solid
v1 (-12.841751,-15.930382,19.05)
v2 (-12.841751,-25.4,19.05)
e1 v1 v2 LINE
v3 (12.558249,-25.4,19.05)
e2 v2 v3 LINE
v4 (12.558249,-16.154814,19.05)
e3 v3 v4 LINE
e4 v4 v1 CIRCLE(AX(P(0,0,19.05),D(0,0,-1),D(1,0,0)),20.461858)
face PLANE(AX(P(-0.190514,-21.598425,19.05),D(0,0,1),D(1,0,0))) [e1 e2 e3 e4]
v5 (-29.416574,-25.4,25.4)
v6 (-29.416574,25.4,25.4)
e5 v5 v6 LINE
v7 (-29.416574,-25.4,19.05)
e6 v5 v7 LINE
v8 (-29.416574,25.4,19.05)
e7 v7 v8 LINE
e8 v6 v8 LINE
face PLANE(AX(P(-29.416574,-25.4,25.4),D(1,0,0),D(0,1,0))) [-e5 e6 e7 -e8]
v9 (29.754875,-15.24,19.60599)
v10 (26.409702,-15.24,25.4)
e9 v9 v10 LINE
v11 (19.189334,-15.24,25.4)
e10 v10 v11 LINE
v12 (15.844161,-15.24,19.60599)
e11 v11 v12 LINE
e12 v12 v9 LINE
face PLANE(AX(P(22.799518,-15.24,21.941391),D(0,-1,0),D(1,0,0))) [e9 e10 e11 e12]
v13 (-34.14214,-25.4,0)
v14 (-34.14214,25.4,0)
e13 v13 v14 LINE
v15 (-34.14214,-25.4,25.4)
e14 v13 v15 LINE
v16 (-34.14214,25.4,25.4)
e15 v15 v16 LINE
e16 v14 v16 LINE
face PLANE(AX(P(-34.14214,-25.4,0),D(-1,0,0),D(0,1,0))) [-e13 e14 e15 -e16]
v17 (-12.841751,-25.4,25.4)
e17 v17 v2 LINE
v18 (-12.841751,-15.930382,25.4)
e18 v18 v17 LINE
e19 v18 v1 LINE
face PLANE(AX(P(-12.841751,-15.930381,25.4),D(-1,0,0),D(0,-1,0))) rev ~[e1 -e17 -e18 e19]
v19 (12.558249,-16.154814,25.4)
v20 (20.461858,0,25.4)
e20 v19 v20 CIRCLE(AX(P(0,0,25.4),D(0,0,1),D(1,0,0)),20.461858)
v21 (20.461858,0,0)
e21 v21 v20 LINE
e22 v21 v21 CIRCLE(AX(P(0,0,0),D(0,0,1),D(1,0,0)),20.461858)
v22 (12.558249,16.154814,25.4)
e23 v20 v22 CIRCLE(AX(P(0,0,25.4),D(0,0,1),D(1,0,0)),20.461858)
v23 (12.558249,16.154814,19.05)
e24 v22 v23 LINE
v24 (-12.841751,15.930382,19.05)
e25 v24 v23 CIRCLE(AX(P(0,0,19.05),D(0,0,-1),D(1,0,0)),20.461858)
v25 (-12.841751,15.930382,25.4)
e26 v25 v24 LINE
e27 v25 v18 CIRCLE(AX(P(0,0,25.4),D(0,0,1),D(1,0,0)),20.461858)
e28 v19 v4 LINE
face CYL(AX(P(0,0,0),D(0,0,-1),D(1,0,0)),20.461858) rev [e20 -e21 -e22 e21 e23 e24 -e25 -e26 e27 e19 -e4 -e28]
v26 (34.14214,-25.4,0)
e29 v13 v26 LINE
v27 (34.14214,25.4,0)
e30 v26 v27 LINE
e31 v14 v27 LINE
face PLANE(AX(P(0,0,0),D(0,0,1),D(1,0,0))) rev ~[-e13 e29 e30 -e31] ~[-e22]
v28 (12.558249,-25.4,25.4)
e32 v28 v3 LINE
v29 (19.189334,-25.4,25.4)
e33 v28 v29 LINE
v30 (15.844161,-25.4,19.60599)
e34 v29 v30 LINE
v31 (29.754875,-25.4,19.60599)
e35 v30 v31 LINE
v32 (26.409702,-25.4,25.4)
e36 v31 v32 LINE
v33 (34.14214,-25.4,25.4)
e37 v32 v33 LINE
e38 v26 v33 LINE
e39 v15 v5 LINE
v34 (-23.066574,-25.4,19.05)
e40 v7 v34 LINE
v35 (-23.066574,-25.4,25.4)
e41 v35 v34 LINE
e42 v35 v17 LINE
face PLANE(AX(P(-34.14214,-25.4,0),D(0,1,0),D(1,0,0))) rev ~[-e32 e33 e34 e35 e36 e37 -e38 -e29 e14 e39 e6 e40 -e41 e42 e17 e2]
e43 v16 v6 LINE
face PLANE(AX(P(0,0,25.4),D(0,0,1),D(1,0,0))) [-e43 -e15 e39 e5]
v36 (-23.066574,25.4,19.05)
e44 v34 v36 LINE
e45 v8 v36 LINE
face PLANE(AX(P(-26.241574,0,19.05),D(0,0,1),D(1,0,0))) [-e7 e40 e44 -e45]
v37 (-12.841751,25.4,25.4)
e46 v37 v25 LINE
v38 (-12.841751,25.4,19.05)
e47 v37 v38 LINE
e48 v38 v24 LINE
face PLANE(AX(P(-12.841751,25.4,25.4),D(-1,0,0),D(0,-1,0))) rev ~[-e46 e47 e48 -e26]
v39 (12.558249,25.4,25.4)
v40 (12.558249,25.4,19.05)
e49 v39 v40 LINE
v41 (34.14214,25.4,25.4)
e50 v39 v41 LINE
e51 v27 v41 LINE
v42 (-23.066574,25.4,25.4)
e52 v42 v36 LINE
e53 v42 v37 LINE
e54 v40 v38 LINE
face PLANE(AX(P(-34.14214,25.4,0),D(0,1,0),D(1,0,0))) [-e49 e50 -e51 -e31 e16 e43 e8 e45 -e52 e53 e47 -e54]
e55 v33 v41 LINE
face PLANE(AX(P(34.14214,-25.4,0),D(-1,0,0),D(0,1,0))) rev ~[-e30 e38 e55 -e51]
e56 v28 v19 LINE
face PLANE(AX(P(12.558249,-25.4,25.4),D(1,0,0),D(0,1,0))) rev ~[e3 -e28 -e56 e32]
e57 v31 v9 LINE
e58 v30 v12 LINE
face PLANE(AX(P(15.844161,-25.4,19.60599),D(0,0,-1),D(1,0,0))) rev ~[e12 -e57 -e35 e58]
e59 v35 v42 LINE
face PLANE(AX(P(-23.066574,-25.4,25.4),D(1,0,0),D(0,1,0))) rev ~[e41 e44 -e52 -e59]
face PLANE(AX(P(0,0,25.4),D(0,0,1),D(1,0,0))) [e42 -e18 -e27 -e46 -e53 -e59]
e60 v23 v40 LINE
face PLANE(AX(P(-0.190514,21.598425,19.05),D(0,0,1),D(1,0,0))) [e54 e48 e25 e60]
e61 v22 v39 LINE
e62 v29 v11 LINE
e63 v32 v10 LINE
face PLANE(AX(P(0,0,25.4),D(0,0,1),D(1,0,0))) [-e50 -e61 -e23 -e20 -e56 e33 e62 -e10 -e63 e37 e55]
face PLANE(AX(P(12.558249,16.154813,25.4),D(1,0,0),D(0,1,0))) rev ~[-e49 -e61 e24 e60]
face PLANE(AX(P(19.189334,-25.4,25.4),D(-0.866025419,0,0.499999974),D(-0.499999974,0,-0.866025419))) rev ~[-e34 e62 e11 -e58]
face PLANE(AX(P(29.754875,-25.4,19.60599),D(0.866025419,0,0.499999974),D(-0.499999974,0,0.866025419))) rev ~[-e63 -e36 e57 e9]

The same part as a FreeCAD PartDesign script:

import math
import FreeCAD as App
import Part
import Sketcher

V = App.Vector
Q = App.Units.Quantity


def add_polygon(sketch, points):
    """Adds a closed chain of lines whose ends are joined by coincident constraints."""
    first, n = sketch.GeometryCount, len(points)
    for a, b in zip(points, points[1:] + points[:1]):
        sketch.addGeometry(Part.LineSegment(App.Vector(*a, 0), App.Vector(*b, 0)), False)
    for i in range(n):
        sketch.addConstraint(Sketcher.Constraint("Coincident", first + i, 2, first + (i + 1) % n, 1))

doc = App.newDocument("Part")
body = doc.addObject("PartDesign::Body", "Body")

sketch1 = doc.addObject("Sketcher::SketchObject", "Sketch")
body.addObject(sketch1)
sketch1.AttachmentSupport = (doc.XY_Plane, [""])
sketch1.MapMode = "FlatFace"
add_polygon(sketch1, [(-34.14214, 25.4), (-34.14214, -25.4), (34.14214, -25.4), (34.14214, 25.4)])
sketch1.addGeometry(Part.Circle(V(0, 0, 0), V(0, 0, 1), 20.461858), False)
sketch1.addConstraint([
    Sketcher.Constraint("Vertical", 0),
    Sketcher.Constraint("Horizontal", 1),
    Sketcher.Constraint("Vertical", 2),
    Sketcher.Constraint("Horizontal", 3),
    Sketcher.Constraint("Coincident", 4, 3, -1, 1),
    Sketcher.Constraint("Symmetric", 0, 2, 2, 2, -1, 1),
    Sketcher.Constraint("DistanceY", 0, 2, 0, 1, Q("2 in")),
    Sketcher.Constraint("Diameter", 4, 40.923716),
    Sketcher.Constraint("DistanceX", 1, 1, 1, 2, 68.28428),
])
pad1 = doc.addObject("PartDesign::Pad", "Pad")
body.addObject(pad1)
pad1.Profile = sketch1
pad1.Length = Q("1 in")

sketch2 = doc.addObject("Sketcher::SketchObject", "Sketch001")
body.addObject(sketch2)
sketch2.AttachmentSupport = (doc.XY_Plane, [""])
sketch2.MapMode = "FlatFace"
sketch2.AttachmentOffset = App.Placement(V(0, 0, 1 * 25.4), App.Rotation())
add_polygon(sketch2, [(-29.416574, 25.4), (-29.416574, -25.4), (-23.066574, -25.4), (-23.066574, 25.4)])
sketch2.addGeometry(Part.LineSegment(V(12.558249, 25.4, 0), V(-12.841751, 25.4, 0)), False)
sketch2.addGeometry(Part.LineSegment(V(-12.841751, 25.4, 0), V(-12.841751, 15.930381, 0)), False)
sketch2.addGeometry(Part.ArcOfCircle(Part.Circle(V(0, 0.000002, 0), V(0, 0, 1), 20.461856), math.radians(52.139613), math.radians(128.872881)), False)
sketch2.addGeometry(Part.LineSegment(V(12.558249, 16.154813, 0), V(12.558249, 25.4, 0)), False)
sketch2.addGeometry(Part.LineSegment(V(-12.841751, -15.930381, 0), V(-12.841751, -25.4, 0)), False)
sketch2.addGeometry(Part.LineSegment(V(-12.841751, -25.4, 0), V(12.558249, -25.4, 0)), False)
sketch2.addGeometry(Part.LineSegment(V(12.558249, -25.4, 0), V(12.558249, -16.154813, 0)), False)
sketch2.addGeometry(Part.ArcOfCircle(Part.Circle(V(0, -0.000002, 0), V(0, 0, 1), 20.461856), math.radians(-128.872881), math.radians(-52.139613)), False)
sketch2.addConstraint([
    Sketcher.Constraint("Coincident", 4, 2, 5, 1),
    Sketcher.Constraint("Coincident", 5, 2, 6, 2),
    Sketcher.Constraint("Coincident", 6, 1, 7, 1),
    Sketcher.Constraint("Coincident", 7, 2, 4, 1),
    Sketcher.Constraint("Coincident", 8, 2, 9, 1),
    Sketcher.Constraint("Coincident", 9, 2, 10, 1),
    Sketcher.Constraint("Coincident", 10, 2, 11, 2),
    Sketcher.Constraint("Coincident", 11, 1, 8, 1),
    Sketcher.Constraint("Vertical", 0),
    Sketcher.Constraint("Horizontal", 1),
    Sketcher.Constraint("Vertical", 2),
    Sketcher.Constraint("Horizontal", 3),
    Sketcher.Constraint("Horizontal", 4),
    Sketcher.Constraint("Vertical", 5),
    Sketcher.Constraint("Vertical", 7),
    Sketcher.Constraint("Vertical", 8),
    Sketcher.Constraint("Horizontal", 9),
    Sketcher.Constraint("Vertical", 10),
    Sketcher.Constraint("Coincident", 6, 3, -1, 1),
    Sketcher.Constraint("Coincident", 11, 3, -1, 1),
    Sketcher.Constraint("Equal", 6, 11),
    Sketcher.Constraint("Symmetric", 4, 2, 8, 2, -1),
    Sketcher.Constraint("Horizontal", 3, 2, 4, 2),
    Sketcher.Constraint("Horizontal", 1, 2, 8, 2),
    Sketcher.Constraint("Vertical", 7, 2, 9, 2),
    Sketcher.Constraint("DistanceX", 4, 2, 4, 1, Q("1 in")),
    Sketcher.Constraint("DistanceY", 0, 2, 0, 1, Q("2 in")),
    Sketcher.Constraint("DistanceX", 1, 1, 1, 2, Q("0.25 in")),
    Sketcher.Constraint("Radius", 6, 20.461856),
    Sketcher.Constraint("DistanceY", 5, 2, 5, 1, 9.469619),
    Sketcher.Constraint("DistanceX", 0, 2, -1, 1, 29.416574),
])
pocket1 = doc.addObject("PartDesign::Pocket", "Pocket")
body.addObject(pocket1)
pocket1.Profile = sketch2
pocket1.Length = Q("0.25 in")

sketch3 = doc.addObject("Sketcher::SketchObject", "Sketch002")
body.addObject(sketch3)
sketch3.AttachmentSupport = (doc.XZ_Plane, [""])
sketch3.MapMode = "FlatFace"
sketch3.AttachmentOffset = App.Placement(V(0, 0, 1 * 25.4), App.Rotation())
add_polygon(sketch3, [(26.409702, 25.4), (19.189334, 25.4), (15.844161, 19.60599), (29.754875, 19.60599)])
sketch3.addConstraint([
    Sketcher.Constraint("Horizontal", 0),
    Sketcher.Constraint("Horizontal", 2),
    Sketcher.Constraint("Equal", 1, 3),
    Sketcher.Constraint("DistanceY", -1, 1, 0, 2, Q("1 in")),
    Sketcher.Constraint("Angle", 1, Q("-119.999998 deg")),
    Sketcher.Constraint("DistanceX", 0, 2, 0, 1, 7.220368),
    Sketcher.Constraint("DistanceX", -1, 1, 3, 2, 26.409702),
    Sketcher.Constraint("DistanceX", 2, 1, 2, 2, 13.910714),
])
pocket2 = doc.addObject("PartDesign::Pocket", "Pocket001")
body.addObject(pocket2)
pocket2.Profile = sketch3
pocket2.Length = Q("0.4 in")

doc.recompute()
